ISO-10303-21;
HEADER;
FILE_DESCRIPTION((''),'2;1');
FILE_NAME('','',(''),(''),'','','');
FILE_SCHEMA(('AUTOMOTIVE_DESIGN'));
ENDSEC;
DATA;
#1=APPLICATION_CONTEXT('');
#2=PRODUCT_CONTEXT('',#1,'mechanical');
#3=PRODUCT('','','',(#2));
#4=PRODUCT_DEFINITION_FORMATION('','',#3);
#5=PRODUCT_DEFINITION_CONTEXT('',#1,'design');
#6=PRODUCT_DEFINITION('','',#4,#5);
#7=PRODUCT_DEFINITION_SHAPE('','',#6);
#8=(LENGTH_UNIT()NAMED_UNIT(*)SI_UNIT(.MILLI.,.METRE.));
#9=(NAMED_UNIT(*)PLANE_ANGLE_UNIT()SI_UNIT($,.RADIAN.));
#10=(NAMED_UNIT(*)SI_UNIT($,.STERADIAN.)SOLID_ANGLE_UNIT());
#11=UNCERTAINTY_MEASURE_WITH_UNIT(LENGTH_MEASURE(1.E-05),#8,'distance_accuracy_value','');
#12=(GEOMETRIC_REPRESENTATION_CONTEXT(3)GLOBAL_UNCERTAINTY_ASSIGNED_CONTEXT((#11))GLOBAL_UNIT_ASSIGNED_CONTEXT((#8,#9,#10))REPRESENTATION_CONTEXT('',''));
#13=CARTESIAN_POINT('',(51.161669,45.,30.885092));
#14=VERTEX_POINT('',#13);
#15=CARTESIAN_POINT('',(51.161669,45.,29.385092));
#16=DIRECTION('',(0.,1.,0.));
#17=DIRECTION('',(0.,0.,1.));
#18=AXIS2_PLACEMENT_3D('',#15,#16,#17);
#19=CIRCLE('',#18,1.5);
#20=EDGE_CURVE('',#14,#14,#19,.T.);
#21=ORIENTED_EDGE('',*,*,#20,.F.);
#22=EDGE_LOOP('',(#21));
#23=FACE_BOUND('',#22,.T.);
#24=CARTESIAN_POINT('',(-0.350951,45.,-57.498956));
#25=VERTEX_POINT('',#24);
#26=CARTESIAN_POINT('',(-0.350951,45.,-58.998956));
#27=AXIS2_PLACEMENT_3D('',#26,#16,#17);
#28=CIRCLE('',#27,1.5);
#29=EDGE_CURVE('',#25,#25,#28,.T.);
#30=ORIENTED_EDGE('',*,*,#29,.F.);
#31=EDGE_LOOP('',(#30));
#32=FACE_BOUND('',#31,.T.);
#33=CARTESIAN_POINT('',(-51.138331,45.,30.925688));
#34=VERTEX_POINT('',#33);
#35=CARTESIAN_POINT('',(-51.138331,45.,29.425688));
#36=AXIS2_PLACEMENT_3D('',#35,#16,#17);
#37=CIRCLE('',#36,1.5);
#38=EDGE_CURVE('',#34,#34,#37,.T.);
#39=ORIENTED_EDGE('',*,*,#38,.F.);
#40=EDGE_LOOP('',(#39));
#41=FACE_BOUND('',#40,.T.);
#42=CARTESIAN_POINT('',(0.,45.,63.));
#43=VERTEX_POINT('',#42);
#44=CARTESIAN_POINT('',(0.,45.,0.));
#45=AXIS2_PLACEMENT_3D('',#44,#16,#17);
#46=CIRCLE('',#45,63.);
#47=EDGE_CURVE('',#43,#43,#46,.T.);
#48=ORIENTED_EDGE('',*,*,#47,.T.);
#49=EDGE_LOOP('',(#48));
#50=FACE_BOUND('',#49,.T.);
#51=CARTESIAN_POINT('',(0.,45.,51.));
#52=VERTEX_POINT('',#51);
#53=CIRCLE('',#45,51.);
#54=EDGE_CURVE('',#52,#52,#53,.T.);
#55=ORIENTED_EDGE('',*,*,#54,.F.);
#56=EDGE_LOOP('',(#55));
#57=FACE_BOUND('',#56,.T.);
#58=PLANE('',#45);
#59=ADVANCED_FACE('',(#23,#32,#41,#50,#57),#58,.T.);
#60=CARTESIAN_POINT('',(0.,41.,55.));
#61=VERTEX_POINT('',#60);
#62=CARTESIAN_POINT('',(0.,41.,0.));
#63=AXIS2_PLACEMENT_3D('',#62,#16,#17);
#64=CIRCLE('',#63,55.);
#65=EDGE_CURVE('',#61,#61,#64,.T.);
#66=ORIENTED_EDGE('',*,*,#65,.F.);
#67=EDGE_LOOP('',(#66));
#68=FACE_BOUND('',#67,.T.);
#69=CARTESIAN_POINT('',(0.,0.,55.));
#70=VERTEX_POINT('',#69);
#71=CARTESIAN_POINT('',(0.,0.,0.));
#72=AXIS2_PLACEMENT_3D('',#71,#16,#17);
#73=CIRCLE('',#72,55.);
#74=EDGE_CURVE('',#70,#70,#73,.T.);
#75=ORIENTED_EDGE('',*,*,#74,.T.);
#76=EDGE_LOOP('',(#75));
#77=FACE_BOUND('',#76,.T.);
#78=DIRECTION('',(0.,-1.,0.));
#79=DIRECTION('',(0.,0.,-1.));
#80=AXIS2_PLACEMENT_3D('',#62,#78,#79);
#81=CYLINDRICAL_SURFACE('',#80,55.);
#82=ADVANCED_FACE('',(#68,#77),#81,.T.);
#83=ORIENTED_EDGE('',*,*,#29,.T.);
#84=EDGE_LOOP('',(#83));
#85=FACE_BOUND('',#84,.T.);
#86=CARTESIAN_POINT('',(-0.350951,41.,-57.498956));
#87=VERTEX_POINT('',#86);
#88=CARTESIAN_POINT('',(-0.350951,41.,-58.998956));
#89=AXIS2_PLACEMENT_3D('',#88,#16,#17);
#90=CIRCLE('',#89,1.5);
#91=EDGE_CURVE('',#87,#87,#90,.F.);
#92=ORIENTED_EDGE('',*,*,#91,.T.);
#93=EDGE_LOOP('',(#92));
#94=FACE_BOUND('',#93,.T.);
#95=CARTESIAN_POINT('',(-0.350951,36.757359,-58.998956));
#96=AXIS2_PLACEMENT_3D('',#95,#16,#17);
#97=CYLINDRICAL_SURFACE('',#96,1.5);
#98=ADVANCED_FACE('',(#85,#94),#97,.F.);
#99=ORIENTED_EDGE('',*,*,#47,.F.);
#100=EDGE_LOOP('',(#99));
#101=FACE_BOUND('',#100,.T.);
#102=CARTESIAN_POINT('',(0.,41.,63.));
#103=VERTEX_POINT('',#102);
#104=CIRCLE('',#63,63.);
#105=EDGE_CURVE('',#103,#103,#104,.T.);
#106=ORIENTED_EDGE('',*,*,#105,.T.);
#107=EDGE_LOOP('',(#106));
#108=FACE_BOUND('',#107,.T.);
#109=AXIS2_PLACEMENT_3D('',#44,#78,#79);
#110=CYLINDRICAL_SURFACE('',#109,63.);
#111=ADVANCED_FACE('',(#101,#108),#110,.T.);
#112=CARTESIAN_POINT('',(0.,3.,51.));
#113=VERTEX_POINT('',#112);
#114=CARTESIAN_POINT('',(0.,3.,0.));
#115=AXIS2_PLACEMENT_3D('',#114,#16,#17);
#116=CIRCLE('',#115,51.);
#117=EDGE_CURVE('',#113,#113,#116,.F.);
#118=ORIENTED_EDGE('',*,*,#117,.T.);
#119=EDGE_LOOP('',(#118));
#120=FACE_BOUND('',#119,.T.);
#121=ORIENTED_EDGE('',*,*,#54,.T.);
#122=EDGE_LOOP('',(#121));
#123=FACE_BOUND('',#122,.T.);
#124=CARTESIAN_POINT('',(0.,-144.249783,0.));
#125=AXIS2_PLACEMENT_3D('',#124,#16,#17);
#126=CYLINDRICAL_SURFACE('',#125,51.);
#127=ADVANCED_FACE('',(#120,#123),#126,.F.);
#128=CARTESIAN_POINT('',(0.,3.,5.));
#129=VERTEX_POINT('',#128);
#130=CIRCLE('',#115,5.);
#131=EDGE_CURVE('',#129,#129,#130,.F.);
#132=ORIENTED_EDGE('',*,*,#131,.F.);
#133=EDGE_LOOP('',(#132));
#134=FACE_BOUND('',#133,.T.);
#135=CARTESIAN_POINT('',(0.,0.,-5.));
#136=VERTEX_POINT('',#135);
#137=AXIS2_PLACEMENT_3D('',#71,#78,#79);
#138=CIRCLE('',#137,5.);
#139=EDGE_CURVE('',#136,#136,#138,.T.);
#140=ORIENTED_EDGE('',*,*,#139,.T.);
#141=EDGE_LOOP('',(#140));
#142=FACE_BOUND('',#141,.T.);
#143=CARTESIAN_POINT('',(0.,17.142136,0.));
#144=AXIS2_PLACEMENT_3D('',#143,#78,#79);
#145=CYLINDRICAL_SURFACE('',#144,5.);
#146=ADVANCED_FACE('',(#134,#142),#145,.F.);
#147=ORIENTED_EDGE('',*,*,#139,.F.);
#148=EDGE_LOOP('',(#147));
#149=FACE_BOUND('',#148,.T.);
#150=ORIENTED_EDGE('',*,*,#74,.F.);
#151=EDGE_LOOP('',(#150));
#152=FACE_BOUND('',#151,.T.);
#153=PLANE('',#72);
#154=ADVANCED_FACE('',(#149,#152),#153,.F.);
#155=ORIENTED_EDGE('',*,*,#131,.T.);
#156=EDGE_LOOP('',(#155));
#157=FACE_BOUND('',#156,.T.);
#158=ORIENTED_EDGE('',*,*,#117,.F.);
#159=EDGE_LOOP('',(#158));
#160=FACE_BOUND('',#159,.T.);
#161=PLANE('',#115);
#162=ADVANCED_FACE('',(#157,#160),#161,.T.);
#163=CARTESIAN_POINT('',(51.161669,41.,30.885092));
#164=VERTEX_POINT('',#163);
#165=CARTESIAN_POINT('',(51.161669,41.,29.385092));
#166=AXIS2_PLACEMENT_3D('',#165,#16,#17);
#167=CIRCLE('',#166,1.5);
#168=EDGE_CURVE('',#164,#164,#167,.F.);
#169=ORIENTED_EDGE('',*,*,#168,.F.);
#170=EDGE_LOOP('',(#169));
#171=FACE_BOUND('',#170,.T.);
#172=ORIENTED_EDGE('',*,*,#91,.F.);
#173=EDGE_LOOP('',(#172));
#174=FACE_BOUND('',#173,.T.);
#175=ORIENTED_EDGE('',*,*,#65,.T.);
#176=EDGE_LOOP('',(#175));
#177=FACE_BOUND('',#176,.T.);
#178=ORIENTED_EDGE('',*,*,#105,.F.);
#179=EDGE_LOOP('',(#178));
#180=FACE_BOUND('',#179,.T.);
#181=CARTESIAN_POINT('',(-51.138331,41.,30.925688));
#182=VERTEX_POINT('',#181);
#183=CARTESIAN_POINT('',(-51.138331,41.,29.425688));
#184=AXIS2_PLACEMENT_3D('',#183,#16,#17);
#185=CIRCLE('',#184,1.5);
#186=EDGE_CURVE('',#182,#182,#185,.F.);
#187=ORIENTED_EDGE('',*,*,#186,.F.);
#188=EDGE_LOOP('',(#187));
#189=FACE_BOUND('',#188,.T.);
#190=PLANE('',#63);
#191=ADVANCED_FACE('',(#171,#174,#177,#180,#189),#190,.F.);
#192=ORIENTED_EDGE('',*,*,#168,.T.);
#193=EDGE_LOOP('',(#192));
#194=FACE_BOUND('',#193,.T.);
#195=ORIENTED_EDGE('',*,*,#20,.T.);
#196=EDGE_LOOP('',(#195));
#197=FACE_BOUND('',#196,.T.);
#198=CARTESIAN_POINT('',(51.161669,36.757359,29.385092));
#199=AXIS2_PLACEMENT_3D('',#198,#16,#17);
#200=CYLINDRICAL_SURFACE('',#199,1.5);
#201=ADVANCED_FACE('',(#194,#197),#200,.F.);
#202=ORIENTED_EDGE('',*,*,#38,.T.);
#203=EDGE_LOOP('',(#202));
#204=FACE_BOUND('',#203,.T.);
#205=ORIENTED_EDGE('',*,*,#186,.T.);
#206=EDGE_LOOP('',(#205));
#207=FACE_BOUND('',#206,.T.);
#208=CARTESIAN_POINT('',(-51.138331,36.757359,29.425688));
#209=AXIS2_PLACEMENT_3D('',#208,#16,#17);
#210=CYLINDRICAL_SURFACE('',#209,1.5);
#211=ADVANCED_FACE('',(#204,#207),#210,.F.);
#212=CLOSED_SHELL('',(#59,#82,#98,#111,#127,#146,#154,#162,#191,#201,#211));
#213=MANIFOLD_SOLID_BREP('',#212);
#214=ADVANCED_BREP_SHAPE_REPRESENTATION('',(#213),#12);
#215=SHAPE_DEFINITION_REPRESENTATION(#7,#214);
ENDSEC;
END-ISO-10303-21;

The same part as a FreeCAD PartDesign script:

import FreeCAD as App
import Part
import Sketcher
from FreeCAD import Vector
Q = App.Units.Quantity

doc = App.newDocument("Part")
body = doc.addObject("PartDesign::Body", "Body")

sketch1 = body.newObject("Sketcher::SketchObject", "Sketch")
sketch1.AttachmentSupport = (doc.getObject("XZ_Plane"), [""])
sketch1.MapMode = "FlatFace"
sketch1.addGeometry(Part.Circle(Vector(0, 0, 0), Vector(0, 0, 1), 55), False)
sketch1.addConstraint([
    Sketcher.Constraint("Coincident", 0, 3, -1, 1),
    Sketcher.Constraint("Diameter", 0, Q("110 mm")),
])
pad1 = body.newObject("PartDesign::Pad", "Pad")
pad1.Profile = sketch1
pad1.Length = 41
pad1.Reversed = True

sketch2 = body.newObject("Sketcher::SketchObject", "Sketch001")
sketch2.AttachmentSupport = (doc.getObject("XZ_Plane"), [""])
sketch2.MapMode = "FlatFace"
sketch2.AttachmentOffset = App.Placement(Vector(0, 0, -41), App.Rotation())
sketch2.addGeometry(Part.Circle(Vector(0, 0, 0), Vector(0, 0, 1), 63), False)
sketch2.addConstraint([
    Sketcher.Constraint("Coincident", 0, 3, -1, 1),
    Sketcher.Constraint("Diameter", 0, Q("126 mm")),
])
pad2 = body.newObject("PartDesign::Pad", "Pad001")
pad2.Profile = sketch2
pad2.Length = 4
pad2.Reversed = True

sketch3 = body.newObject("Sketcher::SketchObject", "Sketch002")
sketch3.AttachmentSupport = (doc.getObject("XZ_Plane"), [""])
sketch3.MapMode = "FlatFace"
sketch3.AttachmentOffset = App.Placement(Vector(0, 0, -45), App.Rotation())
sketch3.addGeometry(Part.Circle(Vector(0, 0, 0), Vector(0, 0, 1), 51), False)
sketch3.addConstraint([
    Sketcher.Constraint("Coincident", 0, 3, -1, 1),
    Sketcher.Constraint("Diameter", 0, Q("102 mm")),
])
pocket1 = body.newObject("PartDesign::Pocket", "Pocket")
pocket1.Profile = sketch3
pocket1.Length = 42
pocket1.Reversed = True

sketch4 = body.newObject("Sketcher::SketchObject", "Sketch003")
sketch4.AttachmentSupport = (doc.getObject("XZ_Plane"), [""])
sketch4.MapMode = "FlatFace"
sketch4.addGeometry(Part.Circle(Vector(0, 0, 0), Vector(0, 0, 1), 5), False)
sketch4.addConstraint([
    Sketcher.Constraint("Coincident", 0, 3, -1, 1),
    Sketcher.Constraint("Diameter", 0, Q("10 mm")),
])
pocket2 = body.newObject("PartDesign::Pocket", "Pocket001")
pocket2.Profile = sketch4
pocket2.Length = 3

sketch5 = body.newObject("Sketcher::SketchObject", "Sketch004")
sketch5.AttachmentSupport = (doc.getObject("XZ_Plane"), [""])
sketch5.MapMode = "FlatFace"
sketch5.AttachmentOffset = App.Placement(Vector(0, 0, -45), App.Rotation())
sketch5.addGeometry([
    Part.Circle(Vector(-0.350951, -58.998956, 0), Vector(0, 0, 1), 1.5),
    Part.Circle(Vector(-51.138331, 29.425688, 0), Vector(0, 0, 1), 1.5),
    Part.Circle(Vector(51.161669, 29.385092, 0), Vector(0, 0, 1), 1.5),
], False)
sketch5.addConstraint([
    Sketcher.Constraint("Equal", 0, 1),
    Sketcher.Constraint("Equal", 1, 2),
    Sketcher.Constraint("Diameter", 0, Q("3 mm")),
    Sketcher.Constraint("DistanceX", 1, 3, 2, 3, Q("102.3 mm")),
    Sketcher.Constraint("DistanceX", 0, 3, -1, 1, Q("0.350951 mm")),
    Sketcher.Constraint("DistanceX", 1, 3, -1, 1, Q("51.138331 mm")),
    Sketcher.Constraint("DistanceY", 0, 3, 2, 3, Q("88.384048 mm")),
    Sketcher.Constraint("DistanceY", 0, 3, -1, 1, Q("58.998956 mm")),
    Sketcher.Constraint("DistanceY", -1, 1, 1, 3, Q("29.425688 mm")),
])
pocket3 = body.newObject("PartDesign::Pocket", "Pocket002")
pocket3.Profile = sketch5
pocket3.Length = 4
pocket3.Reversed = True

doc.recompute()
